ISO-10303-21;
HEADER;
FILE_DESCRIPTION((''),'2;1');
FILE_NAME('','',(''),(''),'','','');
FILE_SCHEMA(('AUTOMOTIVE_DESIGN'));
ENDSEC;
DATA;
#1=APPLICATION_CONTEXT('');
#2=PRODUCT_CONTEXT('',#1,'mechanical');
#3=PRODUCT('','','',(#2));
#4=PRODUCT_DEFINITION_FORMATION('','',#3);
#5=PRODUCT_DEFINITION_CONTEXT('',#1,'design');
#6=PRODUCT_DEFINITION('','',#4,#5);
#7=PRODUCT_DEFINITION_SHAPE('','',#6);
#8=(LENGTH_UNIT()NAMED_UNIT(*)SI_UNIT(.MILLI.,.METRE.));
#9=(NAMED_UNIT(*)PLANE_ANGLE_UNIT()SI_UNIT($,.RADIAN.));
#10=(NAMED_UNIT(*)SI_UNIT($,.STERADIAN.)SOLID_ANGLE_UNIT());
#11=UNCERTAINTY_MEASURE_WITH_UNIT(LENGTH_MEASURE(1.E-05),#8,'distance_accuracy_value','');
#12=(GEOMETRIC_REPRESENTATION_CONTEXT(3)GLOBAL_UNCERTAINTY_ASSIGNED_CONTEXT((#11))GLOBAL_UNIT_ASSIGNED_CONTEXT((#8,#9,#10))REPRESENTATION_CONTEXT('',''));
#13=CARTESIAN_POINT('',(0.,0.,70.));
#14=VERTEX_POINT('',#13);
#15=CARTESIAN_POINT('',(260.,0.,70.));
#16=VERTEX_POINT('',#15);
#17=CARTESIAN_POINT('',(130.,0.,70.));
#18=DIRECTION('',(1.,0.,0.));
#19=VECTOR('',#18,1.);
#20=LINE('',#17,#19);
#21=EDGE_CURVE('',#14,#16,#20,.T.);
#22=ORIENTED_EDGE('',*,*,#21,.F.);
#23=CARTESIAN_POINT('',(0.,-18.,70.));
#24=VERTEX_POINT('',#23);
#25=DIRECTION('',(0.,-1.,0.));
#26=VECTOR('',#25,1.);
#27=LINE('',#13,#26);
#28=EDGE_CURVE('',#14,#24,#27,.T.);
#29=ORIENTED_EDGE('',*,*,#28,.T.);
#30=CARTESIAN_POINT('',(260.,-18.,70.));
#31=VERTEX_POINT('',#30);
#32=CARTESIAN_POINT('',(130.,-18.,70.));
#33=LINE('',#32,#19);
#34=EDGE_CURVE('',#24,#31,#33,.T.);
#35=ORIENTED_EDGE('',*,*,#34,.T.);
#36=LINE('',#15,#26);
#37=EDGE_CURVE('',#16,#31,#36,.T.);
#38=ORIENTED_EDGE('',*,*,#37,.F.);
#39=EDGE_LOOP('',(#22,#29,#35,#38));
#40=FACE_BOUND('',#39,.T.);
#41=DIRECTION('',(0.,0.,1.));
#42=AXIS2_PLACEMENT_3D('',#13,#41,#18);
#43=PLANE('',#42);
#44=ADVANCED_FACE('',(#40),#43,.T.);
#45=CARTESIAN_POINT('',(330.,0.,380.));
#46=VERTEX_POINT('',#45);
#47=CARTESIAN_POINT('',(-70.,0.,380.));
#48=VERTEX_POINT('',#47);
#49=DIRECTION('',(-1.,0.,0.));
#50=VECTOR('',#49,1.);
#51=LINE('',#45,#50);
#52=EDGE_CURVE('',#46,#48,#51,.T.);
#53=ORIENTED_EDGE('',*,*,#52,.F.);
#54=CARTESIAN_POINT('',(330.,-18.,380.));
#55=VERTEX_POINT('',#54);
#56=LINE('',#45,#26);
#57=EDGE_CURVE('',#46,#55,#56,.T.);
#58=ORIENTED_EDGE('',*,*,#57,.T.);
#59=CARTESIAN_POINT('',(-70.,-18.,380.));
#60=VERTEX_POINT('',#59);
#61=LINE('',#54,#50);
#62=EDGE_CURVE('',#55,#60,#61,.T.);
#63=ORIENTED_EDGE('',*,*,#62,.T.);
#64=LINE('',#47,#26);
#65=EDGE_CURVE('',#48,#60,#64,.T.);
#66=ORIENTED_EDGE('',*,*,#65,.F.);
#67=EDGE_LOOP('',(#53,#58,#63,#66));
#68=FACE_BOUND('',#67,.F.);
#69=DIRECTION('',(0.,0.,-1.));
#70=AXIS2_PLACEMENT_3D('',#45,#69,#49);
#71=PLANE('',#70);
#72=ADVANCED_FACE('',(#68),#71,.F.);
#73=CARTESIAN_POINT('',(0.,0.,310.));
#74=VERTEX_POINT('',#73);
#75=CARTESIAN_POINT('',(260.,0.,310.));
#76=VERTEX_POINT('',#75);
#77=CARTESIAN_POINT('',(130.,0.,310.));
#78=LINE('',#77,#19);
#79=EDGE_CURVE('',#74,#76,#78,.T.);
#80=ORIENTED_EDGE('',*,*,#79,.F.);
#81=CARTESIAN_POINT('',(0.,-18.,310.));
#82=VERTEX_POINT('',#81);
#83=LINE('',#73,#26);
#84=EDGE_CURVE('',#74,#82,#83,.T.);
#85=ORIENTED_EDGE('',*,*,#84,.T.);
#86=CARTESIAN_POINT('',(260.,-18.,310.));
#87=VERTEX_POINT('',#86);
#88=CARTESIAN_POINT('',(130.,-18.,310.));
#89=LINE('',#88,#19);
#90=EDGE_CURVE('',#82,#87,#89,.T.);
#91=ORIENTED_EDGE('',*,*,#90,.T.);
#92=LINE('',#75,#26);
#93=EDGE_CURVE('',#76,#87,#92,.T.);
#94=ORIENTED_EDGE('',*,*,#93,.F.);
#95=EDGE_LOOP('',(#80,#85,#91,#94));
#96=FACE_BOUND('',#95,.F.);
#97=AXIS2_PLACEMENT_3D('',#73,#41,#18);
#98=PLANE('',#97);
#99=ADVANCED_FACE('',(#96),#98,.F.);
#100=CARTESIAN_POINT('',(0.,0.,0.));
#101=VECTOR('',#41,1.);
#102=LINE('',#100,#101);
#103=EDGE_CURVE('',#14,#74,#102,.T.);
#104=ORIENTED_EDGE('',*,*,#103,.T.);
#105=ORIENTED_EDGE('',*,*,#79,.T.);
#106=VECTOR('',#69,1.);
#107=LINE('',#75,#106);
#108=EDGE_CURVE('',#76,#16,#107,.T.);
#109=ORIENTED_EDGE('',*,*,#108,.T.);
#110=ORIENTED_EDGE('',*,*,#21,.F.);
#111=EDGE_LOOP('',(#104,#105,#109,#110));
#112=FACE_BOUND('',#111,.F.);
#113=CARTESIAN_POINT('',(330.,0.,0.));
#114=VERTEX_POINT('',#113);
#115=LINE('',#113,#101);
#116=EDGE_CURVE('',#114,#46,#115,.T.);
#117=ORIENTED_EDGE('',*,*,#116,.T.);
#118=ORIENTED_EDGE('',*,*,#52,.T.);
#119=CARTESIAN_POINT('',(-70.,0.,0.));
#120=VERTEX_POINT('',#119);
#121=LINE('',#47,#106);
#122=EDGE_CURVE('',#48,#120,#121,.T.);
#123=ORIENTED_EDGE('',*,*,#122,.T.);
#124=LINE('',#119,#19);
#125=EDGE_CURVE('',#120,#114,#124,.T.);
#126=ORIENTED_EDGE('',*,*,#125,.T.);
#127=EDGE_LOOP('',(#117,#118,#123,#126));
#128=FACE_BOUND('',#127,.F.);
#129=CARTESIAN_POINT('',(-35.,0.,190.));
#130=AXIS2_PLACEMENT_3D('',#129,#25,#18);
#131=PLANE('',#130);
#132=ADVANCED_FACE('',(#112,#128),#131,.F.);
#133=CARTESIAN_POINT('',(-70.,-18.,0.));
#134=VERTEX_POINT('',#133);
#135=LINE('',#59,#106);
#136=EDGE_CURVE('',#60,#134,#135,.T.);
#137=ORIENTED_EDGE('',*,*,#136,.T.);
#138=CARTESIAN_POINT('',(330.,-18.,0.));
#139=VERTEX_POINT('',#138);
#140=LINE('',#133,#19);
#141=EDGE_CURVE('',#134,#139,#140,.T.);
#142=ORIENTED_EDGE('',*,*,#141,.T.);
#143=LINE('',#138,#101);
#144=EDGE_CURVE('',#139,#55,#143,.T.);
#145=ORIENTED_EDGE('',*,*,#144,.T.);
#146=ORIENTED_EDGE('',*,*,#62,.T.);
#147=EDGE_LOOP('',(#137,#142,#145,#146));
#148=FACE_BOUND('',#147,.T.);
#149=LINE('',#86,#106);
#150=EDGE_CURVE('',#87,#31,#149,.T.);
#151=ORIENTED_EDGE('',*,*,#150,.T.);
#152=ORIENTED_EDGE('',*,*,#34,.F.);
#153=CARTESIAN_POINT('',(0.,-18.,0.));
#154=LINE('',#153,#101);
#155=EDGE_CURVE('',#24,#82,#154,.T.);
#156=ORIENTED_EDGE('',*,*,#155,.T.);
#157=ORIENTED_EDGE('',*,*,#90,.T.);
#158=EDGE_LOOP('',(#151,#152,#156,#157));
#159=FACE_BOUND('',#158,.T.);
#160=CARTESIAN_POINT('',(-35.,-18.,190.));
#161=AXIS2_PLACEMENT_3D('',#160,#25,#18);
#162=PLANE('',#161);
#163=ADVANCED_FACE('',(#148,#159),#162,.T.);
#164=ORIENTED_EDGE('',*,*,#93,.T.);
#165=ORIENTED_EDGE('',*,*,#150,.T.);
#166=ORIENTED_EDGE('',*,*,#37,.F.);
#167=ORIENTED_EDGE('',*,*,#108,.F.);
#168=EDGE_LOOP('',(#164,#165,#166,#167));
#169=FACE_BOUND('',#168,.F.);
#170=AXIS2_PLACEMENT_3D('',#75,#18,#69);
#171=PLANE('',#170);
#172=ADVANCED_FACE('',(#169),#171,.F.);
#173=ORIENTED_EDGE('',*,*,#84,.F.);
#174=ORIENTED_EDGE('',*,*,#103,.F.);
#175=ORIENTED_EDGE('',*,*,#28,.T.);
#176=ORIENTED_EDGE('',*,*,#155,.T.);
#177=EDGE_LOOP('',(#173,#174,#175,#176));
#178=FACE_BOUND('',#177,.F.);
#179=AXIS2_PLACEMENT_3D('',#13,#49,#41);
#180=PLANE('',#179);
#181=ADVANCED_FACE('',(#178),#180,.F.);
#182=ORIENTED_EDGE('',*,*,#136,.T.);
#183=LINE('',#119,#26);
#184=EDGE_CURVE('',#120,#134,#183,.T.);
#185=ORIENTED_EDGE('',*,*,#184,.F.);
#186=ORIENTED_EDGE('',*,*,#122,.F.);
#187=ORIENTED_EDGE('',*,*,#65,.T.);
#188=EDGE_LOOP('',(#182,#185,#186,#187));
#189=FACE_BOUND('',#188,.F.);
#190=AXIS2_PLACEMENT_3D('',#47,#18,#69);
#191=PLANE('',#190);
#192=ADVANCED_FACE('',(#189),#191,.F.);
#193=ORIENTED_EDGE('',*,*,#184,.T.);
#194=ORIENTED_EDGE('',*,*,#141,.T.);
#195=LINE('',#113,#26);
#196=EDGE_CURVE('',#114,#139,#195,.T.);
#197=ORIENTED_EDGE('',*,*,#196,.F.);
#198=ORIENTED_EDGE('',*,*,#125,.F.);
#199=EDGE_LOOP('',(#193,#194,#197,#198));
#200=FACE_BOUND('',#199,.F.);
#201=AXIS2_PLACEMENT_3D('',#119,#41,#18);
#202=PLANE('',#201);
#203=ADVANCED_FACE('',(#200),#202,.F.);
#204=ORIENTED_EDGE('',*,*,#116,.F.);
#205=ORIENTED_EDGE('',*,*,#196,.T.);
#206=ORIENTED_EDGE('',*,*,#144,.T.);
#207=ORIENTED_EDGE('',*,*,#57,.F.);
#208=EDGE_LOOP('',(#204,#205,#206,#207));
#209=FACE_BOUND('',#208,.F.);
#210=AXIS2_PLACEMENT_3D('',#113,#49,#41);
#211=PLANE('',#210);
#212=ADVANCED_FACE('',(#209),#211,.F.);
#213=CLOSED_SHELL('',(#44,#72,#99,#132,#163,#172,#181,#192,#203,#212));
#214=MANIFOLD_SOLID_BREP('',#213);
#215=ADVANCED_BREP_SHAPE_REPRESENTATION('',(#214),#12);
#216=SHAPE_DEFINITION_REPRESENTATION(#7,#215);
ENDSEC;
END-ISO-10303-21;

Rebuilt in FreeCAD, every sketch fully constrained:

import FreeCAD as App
import Part
import Sketcher
Q = App.Units.Quantity


def add_polygon(sketch, points):
    """Adds a closed chain of lines whose ends are joined by coincident constraints."""
    first, n = sketch.GeometryCount, len(points)
    for a, b in zip(points, points[1:] + points[:1]):
        sketch.addGeometry(Part.LineSegment(App.Vector(*a, 0), App.Vector(*b, 0)), False)
    for i in range(n):
        sketch.addConstraint(Sketcher.Constraint("Coincident", first + i, 2, first + (i + 1) % n, 1))

doc = App.newDocument("Part")
params = doc.addObject("Spreadsheet::Sheet", "Params")
for row, (alias, value) in enumerate([
    ("sketch1_width", "400 mm"),
    ("sketch1_width2", "260 mm"),
    ("sketch1_height", "380 mm"),
    ("sketch1_height2", "240 mm"),
    ("pad1_length", "18 mm"),
], start=1):
    params.set(f"A{row}", alias)
    params.set(f"B{row}", "=" + value)
    params.setAlias(f"B{row}", alias)

body = doc.addObject("PartDesign::Body", "Body")

# Sketch on XZ plane
sketch1 = body.newObject("Sketcher::SketchObject", "Sketch")
sketch1.AttachmentSupport = (doc.getObject("XZ_Plane"), [""])
sketch1.MapMode = "FlatFace"
add_polygon(sketch1, [(-70, 380), (-70, 0), (330, 0), (330, 380)])  # lines 0-3
add_polygon(sketch1, [(0, 70), (0, 310), (260, 310), (260, 70)])  # lines 4-7
sketch1.addConstraint(Sketcher.Constraint("Vertical", 0))
sketch1.addConstraint(Sketcher.Constraint("Horizontal", 1))
sketch1.addConstraint(Sketcher.Constraint("Vertical", 2))
sketch1.addConstraint(Sketcher.Constraint("Horizontal", 3))
sketch1.addConstraint(Sketcher.Constraint("Vertical", 4))
sketch1.addConstraint(Sketcher.Constraint("Horizontal", 5))
sketch1.addConstraint(Sketcher.Constraint("Vertical", 6))
sketch1.addConstraint(Sketcher.Constraint("Horizontal", 7))
sketch1.addConstraint(Sketcher.Constraint("PointOnObject", 0, 2, -1))
sketch1.addConstraint(Sketcher.Constraint("PointOnObject", 4, 2, -2))
sketch1.addConstraint(Sketcher.Constraint("DistanceX", 1, 1, 1, 2, Q("400 mm")))
sketch1.addConstraint(Sketcher.Constraint("DistanceX", 5, 1, 5, 2, Q("260 mm")))
sketch1.addConstraint(Sketcher.Constraint("DistanceY", 0, 2, 0, 1, Q("380 mm")))
sketch1.addConstraint(Sketcher.Constraint("DistanceY", 4, 1, 4, 2, Q("240 mm")))
sketch1.addConstraint(Sketcher.Constraint("DistanceX", 0, 2, -1, 1, Q("70 mm")))
sketch1.addConstraint(Sketcher.Constraint("DistanceY", -1, 1, 4, 2, Q("310 mm")))
sketch1.setExpression("Constraints[18]", "Params.sketch1_width")
sketch1.setExpression("Constraints[19]", "Params.sketch1_width2")
sketch1.setExpression("Constraints[20]", "Params.sketch1_height")
sketch1.setExpression("Constraints[21]", "Params.sketch1_height2")
pad1 = body.newObject("PartDesign::Pad", "Pad")
pad1.Profile = sketch1
pad1.setExpression("Length", "Params.pad1_length")

doc.recompute()
